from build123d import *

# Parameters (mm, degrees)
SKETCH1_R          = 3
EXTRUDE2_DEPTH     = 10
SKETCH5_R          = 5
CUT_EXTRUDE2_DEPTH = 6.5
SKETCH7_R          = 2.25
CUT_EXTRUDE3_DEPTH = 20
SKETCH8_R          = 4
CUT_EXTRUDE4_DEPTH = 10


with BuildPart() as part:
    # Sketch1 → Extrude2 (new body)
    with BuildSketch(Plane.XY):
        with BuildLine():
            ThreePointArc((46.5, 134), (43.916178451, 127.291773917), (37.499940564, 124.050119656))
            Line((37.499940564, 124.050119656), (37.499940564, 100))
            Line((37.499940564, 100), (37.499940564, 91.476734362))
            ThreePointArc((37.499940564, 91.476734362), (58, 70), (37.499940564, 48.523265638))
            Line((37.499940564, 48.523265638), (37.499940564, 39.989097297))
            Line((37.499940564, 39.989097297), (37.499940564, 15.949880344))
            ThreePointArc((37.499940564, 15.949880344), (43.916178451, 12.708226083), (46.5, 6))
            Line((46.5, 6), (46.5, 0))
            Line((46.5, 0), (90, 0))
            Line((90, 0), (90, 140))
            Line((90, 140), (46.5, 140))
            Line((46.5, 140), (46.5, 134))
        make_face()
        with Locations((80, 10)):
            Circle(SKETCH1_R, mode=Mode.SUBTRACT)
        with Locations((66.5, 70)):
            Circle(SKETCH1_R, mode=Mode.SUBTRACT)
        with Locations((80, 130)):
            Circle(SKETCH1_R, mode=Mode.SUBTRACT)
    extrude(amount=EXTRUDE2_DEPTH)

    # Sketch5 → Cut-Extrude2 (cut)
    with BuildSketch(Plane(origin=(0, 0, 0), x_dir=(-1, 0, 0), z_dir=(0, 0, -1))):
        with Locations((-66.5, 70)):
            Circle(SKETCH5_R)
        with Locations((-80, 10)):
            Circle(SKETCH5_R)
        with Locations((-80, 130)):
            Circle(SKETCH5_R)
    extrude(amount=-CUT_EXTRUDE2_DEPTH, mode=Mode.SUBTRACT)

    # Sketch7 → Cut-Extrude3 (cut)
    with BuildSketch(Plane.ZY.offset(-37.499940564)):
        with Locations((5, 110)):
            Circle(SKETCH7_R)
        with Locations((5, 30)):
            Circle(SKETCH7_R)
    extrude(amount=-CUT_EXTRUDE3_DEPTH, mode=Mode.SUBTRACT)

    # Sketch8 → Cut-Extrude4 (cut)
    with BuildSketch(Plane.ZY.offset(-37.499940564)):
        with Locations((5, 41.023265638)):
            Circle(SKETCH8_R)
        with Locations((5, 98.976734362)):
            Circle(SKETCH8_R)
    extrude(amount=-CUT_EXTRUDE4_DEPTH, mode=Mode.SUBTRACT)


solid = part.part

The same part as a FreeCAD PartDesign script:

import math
import FreeCAD as App
import Part
import Sketcher

V = App.Vector
Q = App.Units.Quantity

doc = App.newDocument("Part")
params = doc.addObject("Spreadsheet::Sheet", "Params")
for row, (alias, value) in enumerate([
    ("sketch1_diameter", "6 mm"),
    ("sketch1_radius", "10 mm"),
    ("sketch1_radius2", "21.5 mm"),
    ("sketch1_height", "6 mm"),
    ("sketch1_height2", "140 mm"),
    ("pad1_length", "10 mm"),
    ("sketch2_diameter", "10 mm"),
    ("pocket1_length", "6.5 mm"),
    ("sketch3_diameter", "4.5 mm"),
    ("pocket2_length", "20 mm"),
    ("sketch4_diameter", "8 mm"),
    ("pocket3_length", "10 mm"),
], start=1):
    params.set(f"A{row}", alias)
    params.set(f"B{row}", "=" + value)
    params.setAlias(f"B{row}", alias)

body = doc.addObject("PartDesign::Body", "Body")

# Sketch on XY plane
sketch1 = doc.addObject("Sketcher::SketchObject", "Sketch")
body.addObject(sketch1)
sketch1.AttachmentSupport = (doc.XY_Plane, [""])
sketch1.MapMode = "FlatFace"
sketch1.addGeometry(Part.ArcOfCircle(Part.Circle(V(36.5, 134, 0), V(0, 0, 1), 10), math.radians(-84), math.radians(0)), False)
sketch1.addGeometry(Part.LineSegment(V(37.5, 124.1, 0), V(37.5, 91.5, 0)), False)
sketch1.addGeometry(Part.ArcOfCircle(Part.Circle(V(36.5, 70, 0), V(0, 0, 1), 21.5), math.radians(-87), math.radians(87)), False)
sketch1.addGeometry(Part.LineSegment(V(37.5, 48.5, 0), V(37.5, 15.9, 0)), False)
sketch1.addGeometry(Part.ArcOfCircle(Part.Circle(V(36.5, 6, 0), V(0, 0, 1), 10), math.radians(0), math.radians(84)), False)
sketch1.addGeometry(Part.LineSegment(V(46.5, 6, 0), V(46.5, 0, 0)), False)
sketch1.addGeometry(Part.LineSegment(V(46.5, 0, 0), V(90, 0, 0)), False)
sketch1.addGeometry(Part.LineSegment(V(90, 0, 0), V(90, 140, 0)), False)
sketch1.addGeometry(Part.LineSegment(V(90, 140, 0), V(46.5, 140, 0)), False)
sketch1.addGeometry(Part.LineSegment(V(46.5, 140, 0), V(46.5, 134, 0)), False)
sketch1.addGeometry(Part.Circle(V(80, 10, 0), V(0, 0, 1), 3), False)
sketch1.addGeometry(Part.Circle(V(66.5, 70, 0), V(0, 0, 1), 3), False)
sketch1.addGeometry(Part.Circle(V(80, 130, 0), V(0, 0, 1), 3), False)
sketch1.addConstraint(Sketcher.Constraint("Coincident", 0, 1, 1, 1))
sketch1.addConstraint(Sketcher.Constraint("Coincident", 1, 2, 2, 2))
sketch1.addConstraint(Sketcher.Constraint("Coincident", 2, 1, 3, 1))
sketch1.addConstraint(Sketcher.Constraint("Coincident", 3, 2, 4, 2))
sketch1.addConstraint(Sketcher.Constraint("Tangent", 4, 1, 5, 1))
sketch1.addConstraint(Sketcher.Constraint("Coincident", 5, 2, 6, 1))
sketch1.addConstraint(Sketcher.Constraint("Coincident", 6, 2, 7, 1))
sketch1.addConstraint(Sketcher.Constraint("Coincident", 7, 2, 8, 1))
sketch1.addConstraint(Sketcher.Constraint("Coincident", 8, 2, 9, 1))
sketch1.addConstraint(Sketcher.Constraint("Tangent", 9, 2, 0, 2))
sketch1.addConstraint(Sketcher.Constraint("Vertical", 1))
sketch1.addConstraint(Sketcher.Constraint("Vertical", 3))
sketch1.addConstraint(Sketcher.Constraint("Vertical", 5))
sketch1.addConstraint(Sketcher.Constraint("Horizontal", 6))
sketch1.addConstraint(Sketcher.Constraint("Vertical", 7))
sketch1.addConstraint(Sketcher.Constraint("Horizontal", 8))
sketch1.addConstraint(Sketcher.Constraint("Vertical", 9))
sketch1.addConstraint(Sketcher.Constraint("Equal", 0, 4))
sketch1.addConstraint(Sketcher.Constraint("Equal", 10, 11))
sketch1.addConstraint(Sketcher.Constraint("Equal", 11, 12))
sketch1.addConstraint(Sketcher.Constraint("PointOnObject", 5, 2, -1))
sketch1.addConstraint(Sketcher.Constraint("Horizontal", 2, 3, 11, 3))
sketch1.addConstraint(Sketcher.Constraint("Vertical", 0, 3, 2, 3))
sketch1.addConstraint(Sketcher.Constraint("Vertical", 2, 3, 4, 3))
sketch1.addConstraint(Sketcher.Constraint("Vertical", 10, 3, 12, 3))
sketch1.addConstraint(Sketcher.Constraint("Vertical", 1, 2, 2, 1))
sketch1.addConstraint(Sketcher.Constraint("Equal", 1, 3))
sketch1.addConstraint(Sketcher.Constraint("Equal", 5, 9))
sketch1.addConstraint(Sketcher.Constraint("Diameter", 10, Q("6 mm")))
sketch1.addConstraint(Sketcher.Constraint("Radius", 0, Q("10 mm")))
sketch1.addConstraint(Sketcher.Constraint("Radius", 2, Q("21.5 mm")))
sketch1.addConstraint(Sketcher.Constraint("DistanceY", 5, 2, 5, 1, Q("6 mm")))
sketch1.addConstraint(Sketcher.Constraint("DistanceY", 7, 1, 7, 2, Q("140 mm")))
sketch1.addConstraint(Sketcher.Constraint("DistanceX", 6, 1, 6, 2, Q("43.5 mm")))
sketch1.addConstraint(Sketcher.Constraint("DistanceX", -1, 1, 10, 3, Q("80 mm")))
sketch1.addConstraint(Sketcher.Constraint("DistanceY", -1, 1, 10, 3, Q("10 mm")))
sketch1.addConstraint(Sketcher.Constraint("DistanceY", -1, 1, 12, 3, Q("130 mm")))
sketch1.addConstraint(Sketcher.Constraint("DistanceX", -1, 1, 6, 2, Q("90 mm")))
sketch1.addConstraint(Sketcher.Constraint("DistanceX", 2, 3, 11, 3, Q("30 mm")))
sketch1.addConstraint(Sketcher.Constraint("DistanceY", 1, 2, 1, 1, Q("32.573385 mm")))
sketch1.setExpression("Constraints[28]", "Params.sketch1_diameter")
sketch1.setExpression("Constraints[29]", "Params.sketch1_radius")
sketch1.setExpression("Constraints[30]", "Params.sketch1_radius2")
sketch1.setExpression("Constraints[31]", "Params.sketch1_height")
sketch1.setExpression("Constraints[32]", "Params.sketch1_height2")
pad1 = doc.addObject("PartDesign::Pad", "Pad")
body.addObject(pad1)
pad1.Profile = sketch1
pad1.setExpression("Length", "Params.pad1_length")

# Sketch on XY plane
sketch2 = doc.addObject("Sketcher::SketchObject", "Sketch001")
body.addObject(sketch2)
sketch2.AttachmentSupport = (doc.XY_Plane, [""])
sketch2.MapMode = "FlatFace"
sketch2.addGeometry(Part.Circle(V(66, 70, 0), V(0, 0, 1), 5), False)
sketch2.addGeometry(Part.Circle(V(80, 10, 0), V(0, 0, 1), 5), False)
sketch2.addGeometry(Part.Circle(V(80, 130, 0), V(0, 0, 1), 5), False)
sketch2.addConstraint(Sketcher.Constraint("Equal", 0, 1))
sketch2.addConstraint(Sketcher.Constraint("Equal", 1, 2))
sketch2.addConstraint(Sketcher.Constraint("Vertical", 1, 3, 2, 3))
sketch2.addConstraint(Sketcher.Constraint("Diameter", 0, Q("10 mm")))
sketch2.addConstraint(Sketcher.Constraint("DistanceY", -1, 1, 0, 3, Q("70 mm")))
sketch2.addConstraint(Sketcher.Constraint("DistanceX", -1, 1, 1, 3, Q("80 mm")))
sketch2.addConstraint(Sketcher.Constraint("DistanceY", -1, 1, 1, 3, Q("10 mm")))
sketch2.addConstraint(Sketcher.Constraint("DistanceY", -1, 1, 2, 3, Q("130 mm")))
sketch2.addConstraint(Sketcher.Constraint("DistanceX", -1, 1, 0, 3, Q("66.5 mm")))
sketch2.setExpression("Constraints[3]", "Params.sketch2_diameter")
pocket1 = doc.addObject("PartDesign::Pocket", "Pocket")
body.addObject(pocket1)
pocket1.Profile = sketch2
pocket1.setExpression("Length", "Params.pocket1_length")
pocket1.Reversed = True

# Sketch on YZ plane
sketch3 = doc.addObject("Sketcher::SketchObject", "Sketch002")
body.addObject(sketch3)
sketch3.AttachmentSupport = (doc.YZ_Plane, [""])
sketch3.MapMode = "FlatFace"
sketch3.AttachmentOffset = App.Placement(V(0, 0, 37.499941), App.Rotation())
sketch3.addGeometry(Part.Circle(V(110, 5, 0), V(0, 0, 1), 2.2), False)
sketch3.addGeometry(Part.Circle(V(30, 5, 0), V(0, 0, 1), 2.2), False)
sketch3.addConstraint(Sketcher.Constraint("Equal", 0, 1))
sketch3.addConstraint(Sketcher.Constraint("Horizontal", 0, 3, 1, 3))
sketch3.addConstraint(Sketcher.Constraint("Diameter", 0, Q("4.5 mm")))
sketch3.addConstraint(Sketcher.Constraint("DistanceX", -1, 1, 0, 3, Q("110 mm")))
sketch3.addConstraint(Sketcher.Constraint("DistanceY", -1, 1, 0, 3, Q("5 mm")))
sketch3.addConstraint(Sketcher.Constraint("DistanceX", -1, 1, 1, 3, Q("30 mm")))
sketch3.setExpression("Constraints[2]", "Params.sketch3_diameter")
pocket2 = doc.addObject("PartDesign::Pocket", "Pocket001")
body.addObject(pocket2)
pocket2.Profile = sketch3
pocket2.setExpression("Length", "Params.pocket2_length")
pocket2.Reversed = True

# Sketch on YZ plane
sketch4 = doc.addObject("Sketcher::SketchObject", "Sketch003")
body.addObject(sketch4)
sketch4.AttachmentSupport = (doc.YZ_Plane, [""])
sketch4.MapMode = "FlatFace"
sketch4.AttachmentOffset = App.Placement(V(0, 0, 37.499941), App.Rotation())
sketch4.addGeometry(Part.Circle(V(41, 5, 0), V(0, 0, 1), 4), False)
sketch4.addGeometry(Part.Circle(V(99, 5, 0), V(0, 0, 1), 4), False)
sketch4.addConstraint(Sketcher.Constraint("Equal", 0, 1))
sketch4.addConstraint(Sketcher.Constraint("Horizontal", 0, 3, 1, 3))
sketch4.addConstraint(Sketcher.Constraint("Diameter", 0, Q("8 mm")))
sketch4.addConstraint(Sketcher.Constraint("DistanceY", -1, 1, 0, 3, Q("5 mm")))
sketch4.addConstraint(Sketcher.Constraint("DistanceX", 0, 3, 1, 3, Q("57.953469 mm")))
sketch4.addConstraint(Sketcher.Constraint("DistanceX", -1, 1, 0, 3, Q("41.023266 mm")))
sketch4.setExpression("Constraints[2]", "Params.sketch4_diameter")
pocket3 = doc.addObject("PartDesign::Pocket", "Pocket002")
body.addObject(pocket3)
pocket3.Profile = sketch4
pocket3.setExpression("Length", "Params.pocket3_length")
pocket3.Reversed = True

doc.recompute()
